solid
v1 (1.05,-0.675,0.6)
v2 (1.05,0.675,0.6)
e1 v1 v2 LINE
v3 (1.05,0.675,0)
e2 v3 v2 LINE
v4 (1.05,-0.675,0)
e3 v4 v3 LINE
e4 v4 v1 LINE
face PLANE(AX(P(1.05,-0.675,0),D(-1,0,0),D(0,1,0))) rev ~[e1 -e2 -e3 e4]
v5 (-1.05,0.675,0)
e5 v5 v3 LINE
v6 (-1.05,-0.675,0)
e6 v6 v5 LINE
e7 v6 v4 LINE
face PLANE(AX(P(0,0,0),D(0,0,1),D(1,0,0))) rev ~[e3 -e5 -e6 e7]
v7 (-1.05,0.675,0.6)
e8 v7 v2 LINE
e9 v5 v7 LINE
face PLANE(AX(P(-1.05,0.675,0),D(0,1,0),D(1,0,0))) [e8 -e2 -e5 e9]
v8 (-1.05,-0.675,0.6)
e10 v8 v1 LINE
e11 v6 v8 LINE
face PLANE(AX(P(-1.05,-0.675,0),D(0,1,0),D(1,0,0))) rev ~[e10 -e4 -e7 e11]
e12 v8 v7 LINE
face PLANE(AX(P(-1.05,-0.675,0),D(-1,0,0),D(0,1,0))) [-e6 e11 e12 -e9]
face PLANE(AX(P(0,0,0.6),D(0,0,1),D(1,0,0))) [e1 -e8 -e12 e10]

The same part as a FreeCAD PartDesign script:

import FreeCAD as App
import Part
import Sketcher

V = App.Vector

doc = App.newDocument("Part")
body = doc.addObject("PartDesign::Body", "Body")

sketch1 = doc.addObject("Sketcher::SketchObject", "Sketch")
body.addObject(sketch1)
sketch1.AttachmentSupport = (doc.XY_Plane, [""])
sketch1.MapMode = "FlatFace"
sketch1.addGeometry([
    Part.LineSegment(V(-1.1, 0.7, 0), V(-1.1, -0.7, 0)),
    Part.LineSegment(V(-1.1, -0.7, 0), V(1.1, -0.7, 0)),
    Part.LineSegment(V(1.1, -0.7, 0), V(1.1, 0.7, 0)),
    Part.LineSegment(V(1.1, 0.7, 0), V(-1.1, 0.7, 0)),
], False)
sketch1.addConstraint([
    Sketcher.Constraint("Coincident", 0, 2, 1, 1),
    Sketcher.Constraint("Coincident", 1, 2, 2, 1),
    Sketcher.Constraint("Coincident", 2, 2, 3, 1),
    Sketcher.Constraint("Coincident", 3, 2, 0, 1),
    Sketcher.Constraint("Vertical", 0),
    Sketcher.Constraint("Horizontal", 1),
    Sketcher.Constraint("Vertical", 2),
    Sketcher.Constraint("Horizontal", 3),
    Sketcher.Constraint("Symmetric", 0, 2, 2, 2, -1, 1),
    Sketcher.Constraint("DistanceX", 1, 1, 1, 2, 2.1),
    Sketcher.Constraint("DistanceY", 0, 2, 0, 1, 1.35),
])
pad1 = doc.addObject("PartDesign::Pad", "Pad")
body.addObject(pad1)
pad1.Profile = sketch1
pad1.Length = 0.6

doc.recompute()
